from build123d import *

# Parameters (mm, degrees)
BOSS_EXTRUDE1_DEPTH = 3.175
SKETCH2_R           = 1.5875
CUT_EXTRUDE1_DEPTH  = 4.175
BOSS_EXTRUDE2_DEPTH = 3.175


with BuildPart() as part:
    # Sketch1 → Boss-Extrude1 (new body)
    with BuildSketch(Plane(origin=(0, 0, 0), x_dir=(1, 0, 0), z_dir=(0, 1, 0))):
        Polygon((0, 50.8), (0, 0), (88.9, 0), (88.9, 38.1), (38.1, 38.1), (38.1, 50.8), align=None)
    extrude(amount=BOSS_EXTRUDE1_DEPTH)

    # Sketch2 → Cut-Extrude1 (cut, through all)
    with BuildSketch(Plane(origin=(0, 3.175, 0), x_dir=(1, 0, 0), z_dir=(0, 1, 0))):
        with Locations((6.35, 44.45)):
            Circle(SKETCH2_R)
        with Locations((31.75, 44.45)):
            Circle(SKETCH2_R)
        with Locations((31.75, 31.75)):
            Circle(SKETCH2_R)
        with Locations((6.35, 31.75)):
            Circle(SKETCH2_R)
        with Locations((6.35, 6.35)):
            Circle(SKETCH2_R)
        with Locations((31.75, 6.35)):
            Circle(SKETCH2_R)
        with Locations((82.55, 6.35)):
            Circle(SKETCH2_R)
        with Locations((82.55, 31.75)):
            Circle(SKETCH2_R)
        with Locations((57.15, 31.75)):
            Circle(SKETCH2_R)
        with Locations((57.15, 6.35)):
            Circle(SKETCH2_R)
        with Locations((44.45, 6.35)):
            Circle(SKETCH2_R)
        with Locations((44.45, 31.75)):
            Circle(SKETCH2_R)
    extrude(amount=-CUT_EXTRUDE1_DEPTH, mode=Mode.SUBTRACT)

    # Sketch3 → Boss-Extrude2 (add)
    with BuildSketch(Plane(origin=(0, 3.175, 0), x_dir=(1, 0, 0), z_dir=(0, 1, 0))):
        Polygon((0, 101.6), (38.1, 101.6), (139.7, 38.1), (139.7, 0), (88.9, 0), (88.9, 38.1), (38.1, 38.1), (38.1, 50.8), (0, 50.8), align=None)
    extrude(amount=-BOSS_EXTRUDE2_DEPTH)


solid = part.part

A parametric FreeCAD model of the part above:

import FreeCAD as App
import Part
import Sketcher
from FreeCAD import Vector
Q = App.Units.Quantity

doc = App.newDocument("Part")
body = doc.addObject("PartDesign::Body", "Body")

sketch1 = body.newObject("Sketcher::SketchObject", "Sketch")
sketch1.AttachmentSupport = (doc.getObject("XZ_Plane"), [""])
sketch1.MapMode = "FlatFace"
sketch1.addGeometry([
    Part.LineSegment(Vector(0, -51, 0), Vector(0, 0, 0)),
    Part.LineSegment(Vector(0, 0, 0), Vector(89, 0, 0)),
    Part.LineSegment(Vector(89, 0, 0), Vector(89, -38, 0)),
    Part.LineSegment(Vector(89, -38, 0), Vector(38, -38, 0)),
    Part.LineSegment(Vector(38, -38, 0), Vector(38, -51, 0)),
    Part.LineSegment(Vector(38, -51, 0), Vector(0, -51, 0)),
], False)
sketch1.addConstraint([
    Sketcher.Constraint("Coincident", 0, 2, 1, 1),
    Sketcher.Constraint("Coincident", 1, 2, 2, 1),
    Sketcher.Constraint("Coincident", 2, 2, 3, 1),
    Sketcher.Constraint("Coincident", 3, 2, 4, 1),
    Sketcher.Constraint("Coincident", 4, 2, 5, 1),
    Sketcher.Constraint("Coincident", 5, 2, 0, 1),
    Sketcher.Constraint("Vertical", 0),
    Sketcher.Constraint("Horizontal", 1),
    Sketcher.Constraint("Vertical", 2),
    Sketcher.Constraint("Horizontal", 3),
    Sketcher.Constraint("Vertical", 4),
    Sketcher.Constraint("Horizontal", 5),
    Sketcher.Constraint("Coincident", 0, 2, -1, 1),
    Sketcher.Constraint("Equal", 3, 0),
    Sketcher.Constraint("Equal", 5, 2),
    Sketcher.Constraint("DistanceX", 3, 2, 3, 1, Q("2 in")),
    Sketcher.Constraint("DistanceX", 1, 1, 1, 2, Q("3.5 in")),
])
pad1 = body.newObject("PartDesign::Pad", "Pad")
pad1.Profile = sketch1
pad1.Length = Q("0.125 in")
pad1.Reversed = True

sketch2 = body.newObject("Sketcher::SketchObject", "Sketch001")
sketch2.AttachmentSupport = (doc.getObject("XZ_Plane"), [""])
sketch2.MapMode = "FlatFace"
sketch2.AttachmentOffset = App.Placement(Vector(0, 0, -0.125 * 25.4), App.Rotation())
sketch2.addGeometry([
    Part.Circle(Vector(6.3, -44.5, 0), Vector(0, 0, 1), 1.6),
    Part.Circle(Vector(31.8, -44.5, 0), Vector(0, 0, 1), 1.6),
    Part.Circle(Vector(31.8, -31.8, 0), Vector(0, 0, 1), 1.6),
    Part.Circle(Vector(6.3, -31.8, 0), Vector(0, 0, 1), 1.6),
    Part.Circle(Vector(6.3, -6.3, 0), Vector(0, 0, 1), 1.6),
    Part.Circle(Vector(31.8, -6.3, 0), Vector(0, 0, 1), 1.6),
    Part.Circle(Vector(82.5, -6.3, 0), Vector(0, 0, 1), 1.6),
    Part.Circle(Vector(82.5, -31.8, 0), Vector(0, 0, 1), 1.6),
    Part.Circle(Vector(57.1, -31.8, 0), Vector(0, 0, 1), 1.6),
    Part.Circle(Vector(57.1, -6.3, 0), Vector(0, 0, 1), 1.6),
    Part.Circle(Vector(44.5, -6.3, 0), Vector(0, 0, 1), 1.6),
    Part.Circle(Vector(44.5, -31.8, 0), Vector(0, 0, 1), 1.6),
], False)
sketch2.addConstraint([
    Sketcher.Constraint("Equal", 0, 1),
    Sketcher.Constraint("Equal", 1, 2),
    Sketcher.Constraint("Equal", 2, 3),
    Sketcher.Constraint("Equal", 3, 4),
    Sketcher.Constraint("Equal", 4, 5),
    Sketcher.Constraint("Equal", 5, 6),
    Sketcher.Constraint("Equal", 6, 7),
    Sketcher.Constraint("Equal", 7, 8),
    Sketcher.Constraint("Equal", 8, 9),
    Sketcher.Constraint("Equal", 9, 10),
    Sketcher.Constraint("Equal", 10, 11),
    Sketcher.Constraint("Horizontal", 0, 3, 1, 3),
    Sketcher.Constraint("Horizontal", 2, 3, 3, 3),
    Sketcher.Constraint("Horizontal", 4, 3, 5, 3),
    Sketcher.Constraint("Horizontal", 5, 3, 6, 3),
    Sketcher.Constraint("Horizontal", 3, 3, 7, 3),
    Sketcher.Constraint("Horizontal", 7, 3, 8, 3),
    Sketcher.Constraint("Horizontal", 6, 3, 9, 3),
    Sketcher.Constraint("Horizontal", 9, 3, 10, 3),
    Sketcher.Constraint("Horizontal", 8, 3, 11, 3),
    Sketcher.Constraint("Vertical", 1, 3, 2, 3),
    Sketcher.Constraint("Vertical", 0, 3, 3, 3),
    Sketcher.Constraint("Vertical", 3, 3, 4, 3),
    Sketcher.Constraint("Vertical", 2, 3, 5, 3),
    Sketcher.Constraint("Vertical", 6, 3, 7, 3),
    Sketcher.Constraint("Vertical", 8, 3, 9, 3),
    Sketcher.Constraint("Vertical", 10, 3, 11, 3),
    Sketcher.Constraint("Diameter", 0, Q("0.125 in")),
    Sketcher.Constraint("DistanceX", 0, 3, 1, 3, Q("1 in")),
    Sketcher.Constraint("DistanceY", 3, 3, 4, 3, Q("1 in")),
    Sketcher.Constraint("DistanceX", 5, 3, 6, 3, Q("2 in")),
    Sketcher.Constraint("DistanceX", 2, 3, 8, 3, Q("1 in")),
    Sketcher.Constraint("DistanceY", 1, 3, 2, 3, Q("0.5 in")),
    Sketcher.Constraint("DistanceX", 10, 3, 9, 3, Q("0.5 in")),
    Sketcher.Constraint("DistanceX", -1, 1, 0, 3, Q("0.25 in")),
    Sketcher.Constraint("DistanceY", 0, 3, -1, 1, Q("1.75 in")),
])
pocket1 = body.newObject("PartDesign::Pocket", "Pocket")
pocket1.Profile = sketch2
pocket1.Type = "ThroughAll"
pocket1.Reversed = True

sketch3 = body.newObject("Sketcher::SketchObject", "Sketch002")
sketch3.AttachmentSupport = (doc.getObject("XZ_Plane"), [""])
sketch3.MapMode = "FlatFace"
sketch3.AttachmentOffset = App.Placement(Vector(0, 0, -0.125 * 25.4), App.Rotation())
sketch3.addGeometry([
    Part.LineSegment(Vector(38, -102, 0), Vector(0, -102, 0)),
    Part.LineSegment(Vector(0, -102, 0), Vector(0, -51, 0)),
    Part.LineSegment(Vector(0, -51, 0), Vector(38, -51, 0)),
    Part.LineSegment(Vector(38, -51, 0), Vector(38, -38, 0)),
    Part.LineSegment(Vector(38, -38, 0), Vector(89, -38, 0)),
    Part.LineSegment(Vector(89, -38, 0), Vector(89, 0, 0)),
    Part.LineSegment(Vector(89, 0, 0), Vector(140, 0, 0)),
    Part.LineSegment(Vector(140, 0, 0), Vector(140, -38, 0)),
    Part.LineSegment(Vector(140, -38, 0), Vector(38, -102, 0)),
], False)
sketch3.addConstraint([
    Sketcher.Constraint("Coincident", 0, 2, 1, 1),
    Sketcher.Constraint("Coincident", 1, 2, 2, 1),
    Sketcher.Constraint("Coincident", 2, 2, 3, 1),
    Sketcher.Constraint("Coincident", 3, 2, 4, 1),
    Sketcher.Constraint("Coincident", 4, 2, 5, 1),
    Sketcher.Constraint("Coincident", 5, 2, 6, 1),
    Sketcher.Constraint("Coincident", 6, 2, 7, 1),
    Sketcher.Constraint("Coincident", 7, 2, 8, 1),
    Sketcher.Constraint("Coincident", 8, 2, 0, 1),
    Sketcher.Constraint("Horizontal", 0),
    Sketcher.Constraint("Vertical", 1),
    Sketcher.Constraint("Horizontal", 2),
    Sketcher.Constraint("Vertical", 3),
    Sketcher.Constraint("Horizontal", 4),
    Sketcher.Constraint("Vertical", 5),
    Sketcher.Constraint("Horizontal", 6),
    Sketcher.Constraint("Vertical", 7),
    Sketcher.Constraint("PointOnObject", 0, 2, -2),
    Sketcher.Constraint("PointOnObject", 5, 2, -1),
    Sketcher.Constraint("Horizontal", 4, 2, 7, 2),
    Sketcher.Constraint("Vertical", 3, 2, 8, 2),
    Sketcher.Constraint("Equal", 4, 6),
    Sketcher.Constraint("Equal", 6, 1),
    Sketcher.Constraint("Equal", 2, 5),
    Sketcher.Constraint("DistanceX", 4, 1, 4, 2, Q("2 in")),
    Sketcher.Constraint("DistanceX", 0, 2, 0, 1, Q("1.5 in")),
    Sketcher.Constraint("DistanceY", 3, 1, 3, 2, Q("0.5 in")),
])
pad2 = body.newObject("PartDesign::Pad", "Pad001")
pad2.Profile = sketch3
pad2.Length = Q("0.125 in")

doc.recompute()
